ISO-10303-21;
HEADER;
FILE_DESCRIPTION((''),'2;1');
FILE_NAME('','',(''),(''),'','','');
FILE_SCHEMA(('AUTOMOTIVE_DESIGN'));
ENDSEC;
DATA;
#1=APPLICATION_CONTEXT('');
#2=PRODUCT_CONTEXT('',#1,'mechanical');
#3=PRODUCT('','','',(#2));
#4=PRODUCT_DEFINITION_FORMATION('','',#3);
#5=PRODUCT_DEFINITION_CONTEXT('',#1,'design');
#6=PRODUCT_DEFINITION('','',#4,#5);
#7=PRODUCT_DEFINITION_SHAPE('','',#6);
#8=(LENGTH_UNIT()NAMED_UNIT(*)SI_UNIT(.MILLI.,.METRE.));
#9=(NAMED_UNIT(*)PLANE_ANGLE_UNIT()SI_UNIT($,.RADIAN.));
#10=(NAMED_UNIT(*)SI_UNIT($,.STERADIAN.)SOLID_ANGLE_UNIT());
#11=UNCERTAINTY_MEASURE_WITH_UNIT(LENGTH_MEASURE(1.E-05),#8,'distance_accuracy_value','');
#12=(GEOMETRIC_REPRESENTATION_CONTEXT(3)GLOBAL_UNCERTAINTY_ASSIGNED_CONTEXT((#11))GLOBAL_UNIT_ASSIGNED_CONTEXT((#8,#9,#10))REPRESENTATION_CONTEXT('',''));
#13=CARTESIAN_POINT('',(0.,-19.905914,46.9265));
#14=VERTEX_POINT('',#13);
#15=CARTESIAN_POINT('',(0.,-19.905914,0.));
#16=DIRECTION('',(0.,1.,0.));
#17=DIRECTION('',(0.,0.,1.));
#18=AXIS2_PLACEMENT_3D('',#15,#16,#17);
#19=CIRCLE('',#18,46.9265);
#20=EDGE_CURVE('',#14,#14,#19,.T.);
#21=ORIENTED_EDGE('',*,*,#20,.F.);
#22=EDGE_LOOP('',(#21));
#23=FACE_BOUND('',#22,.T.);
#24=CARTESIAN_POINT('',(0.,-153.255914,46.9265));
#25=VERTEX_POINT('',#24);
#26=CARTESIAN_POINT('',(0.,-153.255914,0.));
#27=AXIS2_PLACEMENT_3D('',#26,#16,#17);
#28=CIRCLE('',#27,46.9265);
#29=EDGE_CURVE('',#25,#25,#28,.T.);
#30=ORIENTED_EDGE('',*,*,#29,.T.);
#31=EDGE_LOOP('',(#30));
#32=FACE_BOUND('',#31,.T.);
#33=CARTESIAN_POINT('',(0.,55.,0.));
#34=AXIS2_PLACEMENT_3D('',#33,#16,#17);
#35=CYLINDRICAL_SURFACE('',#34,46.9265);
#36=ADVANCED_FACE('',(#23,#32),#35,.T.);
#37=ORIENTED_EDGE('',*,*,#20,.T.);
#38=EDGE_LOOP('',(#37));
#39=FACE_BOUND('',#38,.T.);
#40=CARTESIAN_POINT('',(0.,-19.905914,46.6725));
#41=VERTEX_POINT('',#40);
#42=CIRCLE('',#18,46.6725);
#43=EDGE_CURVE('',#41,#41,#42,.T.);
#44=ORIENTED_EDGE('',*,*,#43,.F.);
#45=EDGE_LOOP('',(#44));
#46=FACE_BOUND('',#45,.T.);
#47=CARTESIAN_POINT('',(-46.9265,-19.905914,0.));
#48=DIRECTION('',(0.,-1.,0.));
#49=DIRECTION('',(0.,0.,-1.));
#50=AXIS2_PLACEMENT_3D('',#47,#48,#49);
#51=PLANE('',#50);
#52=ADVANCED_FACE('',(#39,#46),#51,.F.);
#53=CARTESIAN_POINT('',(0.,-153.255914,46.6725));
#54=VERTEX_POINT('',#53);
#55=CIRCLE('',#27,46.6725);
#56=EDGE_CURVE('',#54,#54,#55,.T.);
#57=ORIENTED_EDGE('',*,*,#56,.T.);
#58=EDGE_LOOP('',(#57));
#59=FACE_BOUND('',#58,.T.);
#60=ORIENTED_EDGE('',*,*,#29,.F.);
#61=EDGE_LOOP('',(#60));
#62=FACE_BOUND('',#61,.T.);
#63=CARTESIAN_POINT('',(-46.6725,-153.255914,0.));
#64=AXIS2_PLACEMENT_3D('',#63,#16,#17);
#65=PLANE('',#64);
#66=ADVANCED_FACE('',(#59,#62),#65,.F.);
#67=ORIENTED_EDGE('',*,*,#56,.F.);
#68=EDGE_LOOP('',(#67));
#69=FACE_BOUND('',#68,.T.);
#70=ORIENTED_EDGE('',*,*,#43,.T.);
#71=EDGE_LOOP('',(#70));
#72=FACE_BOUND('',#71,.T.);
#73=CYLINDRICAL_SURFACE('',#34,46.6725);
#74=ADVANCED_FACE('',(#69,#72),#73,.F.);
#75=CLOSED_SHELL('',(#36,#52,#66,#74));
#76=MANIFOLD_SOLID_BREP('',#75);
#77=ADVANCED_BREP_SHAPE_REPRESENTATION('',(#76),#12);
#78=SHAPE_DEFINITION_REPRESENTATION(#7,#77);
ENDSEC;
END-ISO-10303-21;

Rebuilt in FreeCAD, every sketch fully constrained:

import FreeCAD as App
import Part
import Sketcher
from FreeCAD import Vector
Q = App.Units.Quantity

doc = App.newDocument("Part")
body = doc.addObject("PartDesign::Body", "Body")

# Sketch on XY plane
sketch1 = doc.addObject("Sketcher::SketchObject", "Sketch")
body.addObject(sketch1)
sketch1.AttachmentSupport = (doc.XY_Plane, [""])
sketch1.MapMode = "FlatFace"
sketch1.addGeometry([
    Part.LineSegment(Vector(-46.9265, -19.905914, 0), Vector(-46.9265, -153.255914, 0)),
    Part.LineSegment(Vector(-46.9265, -153.255914, 0), Vector(-46.6725, -153.255914, 0)),
    Part.LineSegment(Vector(-46.6725, -153.255914, 0), Vector(-46.6725, -19.905914, 0)),
    Part.LineSegment(Vector(-46.6725, -19.905914, 0), Vector(-46.9265, -19.905914, 0)),
], False)
sketch1.addConstraint([
    Sketcher.Constraint("Coincident", 0, 2, 1, 1),
    Sketcher.Constraint("Coincident", 1, 2, 2, 1),
    Sketcher.Constraint("Coincident", 2, 2, 3, 1),
    Sketcher.Constraint("Coincident", 3, 2, 0, 1),
    Sketcher.Constraint("Vertical", 0),
    Sketcher.Constraint("Horizontal", 1),
    Sketcher.Constraint("Vertical", 2),
    Sketcher.Constraint("Horizontal", 3),
    Sketcher.Constraint("DistanceX", 1, 1, 1, 2, Q("0.01 in")),
    Sketcher.Constraint("DistanceY", 0, 2, 0, 1, Q("5.25 in")),
    Sketcher.Constraint("DistanceX", 0, 2, -1, 1, Q("1.8475 in")),
    Sketcher.Constraint("DistanceY", 0, 2, -1, 1, Q("153.255914 mm")),
])
revolution = doc.addObject("PartDesign::Revolution", "Revolution")
body.addObject(revolution)
revolution.Profile = sketch1
revolution.ReferenceAxis = (sketch1, ["V_Axis"])
revolution.Angle = 360

doc.recompute()
